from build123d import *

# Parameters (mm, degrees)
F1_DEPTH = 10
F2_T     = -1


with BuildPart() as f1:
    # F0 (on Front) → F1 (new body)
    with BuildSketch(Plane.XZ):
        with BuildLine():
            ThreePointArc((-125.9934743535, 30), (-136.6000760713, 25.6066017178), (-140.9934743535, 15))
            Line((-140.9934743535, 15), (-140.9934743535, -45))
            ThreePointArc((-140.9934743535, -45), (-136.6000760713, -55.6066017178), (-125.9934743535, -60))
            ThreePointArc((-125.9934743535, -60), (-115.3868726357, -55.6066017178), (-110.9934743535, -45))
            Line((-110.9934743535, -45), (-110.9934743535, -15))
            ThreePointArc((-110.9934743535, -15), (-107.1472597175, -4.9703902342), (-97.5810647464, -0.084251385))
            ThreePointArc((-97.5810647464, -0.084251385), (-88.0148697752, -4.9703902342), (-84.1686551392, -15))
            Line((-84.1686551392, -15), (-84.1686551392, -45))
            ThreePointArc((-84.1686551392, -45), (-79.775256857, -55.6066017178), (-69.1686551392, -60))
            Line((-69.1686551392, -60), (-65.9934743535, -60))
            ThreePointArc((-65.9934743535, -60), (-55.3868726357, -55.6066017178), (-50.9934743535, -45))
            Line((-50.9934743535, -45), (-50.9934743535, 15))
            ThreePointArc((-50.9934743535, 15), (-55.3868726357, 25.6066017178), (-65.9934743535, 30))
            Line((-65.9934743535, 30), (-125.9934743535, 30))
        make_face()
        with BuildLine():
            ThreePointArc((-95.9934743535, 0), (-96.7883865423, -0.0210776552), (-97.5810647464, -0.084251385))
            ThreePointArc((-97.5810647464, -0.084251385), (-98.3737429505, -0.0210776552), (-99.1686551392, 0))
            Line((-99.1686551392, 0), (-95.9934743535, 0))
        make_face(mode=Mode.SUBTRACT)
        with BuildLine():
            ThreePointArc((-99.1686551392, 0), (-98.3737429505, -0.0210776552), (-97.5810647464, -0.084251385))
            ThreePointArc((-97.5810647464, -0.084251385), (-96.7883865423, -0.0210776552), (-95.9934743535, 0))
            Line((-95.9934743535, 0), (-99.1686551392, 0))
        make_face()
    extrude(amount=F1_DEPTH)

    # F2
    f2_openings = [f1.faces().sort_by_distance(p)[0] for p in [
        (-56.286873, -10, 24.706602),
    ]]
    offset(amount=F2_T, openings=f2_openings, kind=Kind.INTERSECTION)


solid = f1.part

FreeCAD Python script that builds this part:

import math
import FreeCAD as App
import Part
import Sketcher


def faces_at(feature, points):
    """Names of the faces that lie closest to the given points."""
    faces = feature.Shape.Faces
    near = lambda p: min(range(len(faces)), key=lambda i: faces[i].distToShape(Part.Vertex(*p))[0])
    return sorted({f"Face{near(p) + 1}" for p in points})

doc = App.newDocument("Part")
params = doc.addObject("Spreadsheet::Sheet", "Params")
for row, (alias, value) in enumerate([
    ("sketch1_radius", "15 mm"),
    ("sketch1_width", "60 mm"),
    ("sketch1_height", "30 mm"),
    ("pad1_length", "10 mm"),
    ("thickness_wall", "1 mm"),
], start=1):
    params.set(f"A{row}", alias)
    params.set(f"B{row}", "=" + value)
    params.setAlias(f"B{row}", alias)

body = doc.addObject("PartDesign::Body", "Body")

sketch1 = body.newObject("Sketcher::SketchObject", "Sketch")
sketch1.AttachmentSupport = (doc.getObject("XZ_Plane"), [""])
sketch1.MapMode = "FlatFace"
sketch1.addGeometry([
    Part.ArcOfCircle(Part.Circle(App.Vector(-66, 15, 0), App.Vector(0, 0, 1), 15), math.radians(0), math.radians(90)),
    Part.LineSegment(App.Vector(-66, 30, 0), App.Vector(-126, 30, 0)),
    Part.ArcOfCircle(Part.Circle(App.Vector(-126, 15, 0), App.Vector(0, 0, 1), 15), math.radians(90), math.radians(180)),
    Part.LineSegment(App.Vector(-141, 15, 0), App.Vector(-141, -45, 0)),
    Part.ArcOfCircle(Part.Circle(App.Vector(-126, -45, 0), App.Vector(0, 0, 1), 15), math.radians(180), math.radians(360)),
    Part.LineSegment(App.Vector(-111, -45, 0), App.Vector(-111, -15, 0)),
    Part.ArcOfCircle(Part.Circle(App.Vector(-96, -15, 0), App.Vector(0, 0, 1), 15), math.radians(96), math.radians(180)),
    Part.ArcOfCircle(Part.Circle(App.Vector(-99.2, -15, 0), App.Vector(0, 0, 1), 15), math.radians(0), math.radians(84)),
    Part.LineSegment(App.Vector(-84.2, -15, 0), App.Vector(-84.2, -45, 0)),
    Part.ArcOfCircle(Part.Circle(App.Vector(-69.2, -45, 0), App.Vector(0, 0, 1), 15), math.radians(180), math.radians(270)),
    Part.LineSegment(App.Vector(-69.2, -60, 0), App.Vector(-66, -60, 0)),
    Part.ArcOfCircle(Part.Circle(App.Vector(-66, -45, 0), App.Vector(0, 0, 1), 15), math.radians(-90), math.radians(0)),
    Part.LineSegment(App.Vector(-51, -45, 0), App.Vector(-51, 15, 0)),
], False)
sketch1.addConstraint([
    Sketcher.Constraint("Tangent", 0, 2, 1, 1),
    Sketcher.Constraint("Tangent", 1, 2, 2, 1),
    Sketcher.Constraint("Tangent", 2, 2, 3, 1),
    Sketcher.Constraint("Tangent", 3, 2, 4, 1),
    Sketcher.Constraint("Tangent", 4, 2, 5, 1),
    Sketcher.Constraint("Tangent", 5, 2, 6, 2),
    Sketcher.Constraint("Coincident", 6, 1, 7, 2),
    Sketcher.Constraint("Tangent", 7, 1, 8, 1),
    Sketcher.Constraint("Tangent", 8, 2, 9, 1),
    Sketcher.Constraint("Tangent", 9, 2, 10, 1),
    Sketcher.Constraint("Tangent", 10, 2, 11, 1),
    Sketcher.Constraint("Tangent", 11, 2, 12, 1),
    Sketcher.Constraint("Tangent", 12, 2, 0, 1),
    Sketcher.Constraint("Horizontal", 1),
    Sketcher.Constraint("Vertical", 3),
    Sketcher.Constraint("Vertical", 5),
    Sketcher.Constraint("Vertical", 8),
    Sketcher.Constraint("Horizontal", 10),
    Sketcher.Constraint("Vertical", 12),
    Sketcher.Constraint("Equal", 0, 2),
    Sketcher.Constraint("Equal", 2, 4),
    Sketcher.Constraint("Equal", 4, 6),
    Sketcher.Constraint("Equal", 6, 7),
    Sketcher.Constraint("Equal", 7, 9),
    Sketcher.Constraint("Equal", 9, 11),
    Sketcher.Constraint("Horizontal", 6, 3, 7, 3),
    Sketcher.Constraint("Horizontal", 4, 3, 9, 3),
    Sketcher.Constraint("Equal", 1, 3),
    Sketcher.Constraint("Radius", 0, 15.0),
    Sketcher.Constraint("DistanceX", 1, 2, 1, 1, 60.0),
    Sketcher.Constraint("DistanceY", 5, 1, 5, 2, 30.0),
    Sketcher.Constraint("DistanceY", -1, 1, 0, 3, 15.0),
    Sketcher.Constraint("DistanceX", 10, 1, 10, 2, 3.175181),
    Sketcher.Constraint("DistanceX", 0, 3, -1, 1, 65.993474),
])
sketch1.setExpression("Constraints[28]", "Params.sketch1_radius")
sketch1.setExpression("Constraints[29]", "Params.sketch1_width")
sketch1.setExpression("Constraints[30]", "Params.sketch1_height")
pad1 = body.newObject("PartDesign::Pad", "Pad")
pad1.Profile = sketch1
pad1.setExpression("Length", "Params.pad1_length")
doc.recompute()

thickness = body.newObject("PartDesign::Thickness", "Thickness")
thickness.Base = (pad1, faces_at(pad1, [(-113.993, -10, -33)]))
thickness.setExpression("Value", "Params.thickness_wall")
thickness.Reversed = True
thickness.Join = "Intersection"

doc.recompute()
